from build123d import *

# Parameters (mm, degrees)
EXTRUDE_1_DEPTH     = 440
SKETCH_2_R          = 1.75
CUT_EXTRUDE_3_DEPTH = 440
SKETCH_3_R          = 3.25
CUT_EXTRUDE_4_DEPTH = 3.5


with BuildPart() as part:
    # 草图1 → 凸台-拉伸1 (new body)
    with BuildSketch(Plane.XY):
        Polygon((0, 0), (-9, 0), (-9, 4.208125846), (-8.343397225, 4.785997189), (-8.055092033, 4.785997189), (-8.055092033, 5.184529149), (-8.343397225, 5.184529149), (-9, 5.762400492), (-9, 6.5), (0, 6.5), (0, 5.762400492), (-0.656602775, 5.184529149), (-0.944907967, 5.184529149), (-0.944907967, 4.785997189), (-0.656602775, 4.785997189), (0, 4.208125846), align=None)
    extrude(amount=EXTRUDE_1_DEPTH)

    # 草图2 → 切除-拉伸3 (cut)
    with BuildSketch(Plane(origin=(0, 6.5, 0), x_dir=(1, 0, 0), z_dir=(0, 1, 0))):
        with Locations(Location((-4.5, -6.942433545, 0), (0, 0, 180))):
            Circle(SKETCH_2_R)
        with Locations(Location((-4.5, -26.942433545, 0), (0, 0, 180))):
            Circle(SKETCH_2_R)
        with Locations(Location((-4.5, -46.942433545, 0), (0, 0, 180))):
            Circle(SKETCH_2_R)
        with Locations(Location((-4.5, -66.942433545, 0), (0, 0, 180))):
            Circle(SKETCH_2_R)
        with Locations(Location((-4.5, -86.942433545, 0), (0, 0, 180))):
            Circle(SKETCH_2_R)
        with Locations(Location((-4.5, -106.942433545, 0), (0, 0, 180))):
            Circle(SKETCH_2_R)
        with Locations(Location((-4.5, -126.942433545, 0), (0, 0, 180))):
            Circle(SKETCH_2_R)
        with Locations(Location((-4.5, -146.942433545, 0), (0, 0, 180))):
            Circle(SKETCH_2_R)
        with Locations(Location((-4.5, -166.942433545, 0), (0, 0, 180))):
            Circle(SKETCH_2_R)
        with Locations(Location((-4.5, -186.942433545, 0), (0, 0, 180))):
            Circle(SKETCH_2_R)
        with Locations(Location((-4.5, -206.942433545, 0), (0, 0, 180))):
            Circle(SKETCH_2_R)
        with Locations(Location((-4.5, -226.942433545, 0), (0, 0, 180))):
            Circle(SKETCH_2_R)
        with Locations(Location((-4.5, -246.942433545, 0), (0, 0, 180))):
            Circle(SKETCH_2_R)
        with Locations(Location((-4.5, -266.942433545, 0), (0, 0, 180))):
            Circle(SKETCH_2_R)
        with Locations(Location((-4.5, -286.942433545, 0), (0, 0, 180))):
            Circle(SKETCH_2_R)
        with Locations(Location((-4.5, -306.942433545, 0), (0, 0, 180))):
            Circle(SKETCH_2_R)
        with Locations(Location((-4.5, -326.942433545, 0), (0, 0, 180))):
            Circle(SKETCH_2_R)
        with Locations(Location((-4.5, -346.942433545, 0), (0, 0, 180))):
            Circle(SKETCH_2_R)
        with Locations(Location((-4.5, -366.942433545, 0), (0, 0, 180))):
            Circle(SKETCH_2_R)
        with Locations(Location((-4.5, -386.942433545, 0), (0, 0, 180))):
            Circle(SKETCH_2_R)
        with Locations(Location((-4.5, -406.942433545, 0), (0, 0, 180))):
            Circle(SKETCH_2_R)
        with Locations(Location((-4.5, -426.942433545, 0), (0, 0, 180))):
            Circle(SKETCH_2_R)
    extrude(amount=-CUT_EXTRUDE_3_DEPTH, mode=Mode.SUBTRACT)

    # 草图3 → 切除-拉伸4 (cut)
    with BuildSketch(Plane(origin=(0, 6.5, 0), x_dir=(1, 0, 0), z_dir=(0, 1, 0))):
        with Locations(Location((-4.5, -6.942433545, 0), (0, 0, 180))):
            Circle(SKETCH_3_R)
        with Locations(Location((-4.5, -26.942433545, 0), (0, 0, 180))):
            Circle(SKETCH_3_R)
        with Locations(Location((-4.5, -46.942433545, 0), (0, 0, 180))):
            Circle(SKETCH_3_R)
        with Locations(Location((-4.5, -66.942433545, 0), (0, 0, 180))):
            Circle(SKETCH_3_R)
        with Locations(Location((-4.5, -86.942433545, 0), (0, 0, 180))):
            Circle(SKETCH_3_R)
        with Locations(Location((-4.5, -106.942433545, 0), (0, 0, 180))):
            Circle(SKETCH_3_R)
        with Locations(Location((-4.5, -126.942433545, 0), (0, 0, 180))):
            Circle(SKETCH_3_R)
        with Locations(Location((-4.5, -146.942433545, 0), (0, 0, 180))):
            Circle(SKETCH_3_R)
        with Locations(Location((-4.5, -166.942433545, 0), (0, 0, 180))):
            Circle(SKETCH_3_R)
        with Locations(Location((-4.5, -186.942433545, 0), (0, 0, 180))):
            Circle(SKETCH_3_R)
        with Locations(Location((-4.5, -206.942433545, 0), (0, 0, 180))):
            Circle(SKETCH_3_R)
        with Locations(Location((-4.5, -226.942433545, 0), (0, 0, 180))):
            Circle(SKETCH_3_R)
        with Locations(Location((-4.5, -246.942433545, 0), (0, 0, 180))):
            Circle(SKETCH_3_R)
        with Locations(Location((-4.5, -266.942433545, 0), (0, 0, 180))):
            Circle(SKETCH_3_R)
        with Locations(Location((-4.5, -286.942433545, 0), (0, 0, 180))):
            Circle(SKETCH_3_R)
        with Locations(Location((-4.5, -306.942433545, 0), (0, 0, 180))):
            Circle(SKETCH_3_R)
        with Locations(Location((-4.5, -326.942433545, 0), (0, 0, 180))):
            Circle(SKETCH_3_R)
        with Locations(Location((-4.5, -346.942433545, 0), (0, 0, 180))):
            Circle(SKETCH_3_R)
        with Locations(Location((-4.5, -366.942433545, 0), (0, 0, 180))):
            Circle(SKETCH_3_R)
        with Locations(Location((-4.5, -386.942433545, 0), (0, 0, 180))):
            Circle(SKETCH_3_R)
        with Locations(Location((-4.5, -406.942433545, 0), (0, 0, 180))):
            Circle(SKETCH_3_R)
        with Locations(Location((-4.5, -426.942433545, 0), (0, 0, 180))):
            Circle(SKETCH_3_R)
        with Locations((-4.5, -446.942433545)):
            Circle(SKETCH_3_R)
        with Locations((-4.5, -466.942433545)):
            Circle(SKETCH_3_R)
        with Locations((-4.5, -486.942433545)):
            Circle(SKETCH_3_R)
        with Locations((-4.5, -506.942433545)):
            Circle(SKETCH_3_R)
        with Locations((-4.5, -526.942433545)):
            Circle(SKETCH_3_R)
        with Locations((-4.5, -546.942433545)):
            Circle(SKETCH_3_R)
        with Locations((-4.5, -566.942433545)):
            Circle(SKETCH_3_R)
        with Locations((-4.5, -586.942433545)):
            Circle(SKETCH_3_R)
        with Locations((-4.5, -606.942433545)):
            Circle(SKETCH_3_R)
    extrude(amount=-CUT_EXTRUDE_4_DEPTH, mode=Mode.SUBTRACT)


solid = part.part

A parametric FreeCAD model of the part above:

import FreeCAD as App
import Part
import Sketcher


def add_polygon(sketch, points):
    """Adds a closed chain of lines whose ends are joined by coincident constraints."""
    first, n = sketch.GeometryCount, len(points)
    for a, b in zip(points, points[1:] + points[:1]):
        sketch.addGeometry(Part.LineSegment(App.Vector(*a, 0), App.Vector(*b, 0)), False)
    for i in range(n):
        sketch.addConstraint(Sketcher.Constraint("Coincident", first + i, 2, first + (i + 1) % n, 1))

doc = App.newDocument("Part")
body = doc.addObject("PartDesign::Body", "Body")

sketch1 = doc.addObject("Sketcher::SketchObject", "Sketch")
body.addObject(sketch1)
sketch1.AttachmentSupport = (doc.XY_Plane, [""])
sketch1.MapMode = "FlatFace"
add_polygon(sketch1, [(-9, 0), (0, 0), (0, 4.208126), (-0.656603, 4.785997), (-0.944908, 4.785997), (-0.944908, 5.184529), (-0.656603, 5.184529), (0, 5.7624), (0, 6.5), (-9, 6.5), (-9, 5.7624), (-8.343397, 5.184529), (-8.055092, 5.184529), (-8.055092, 4.785997), (-8.343397, 4.785997), (-9, 4.208126)])
sketch1.addConstraint(Sketcher.Constraint("Horizontal", 0))
sketch1.addConstraint(Sketcher.Constraint("Vertical", 1))
sketch1.addConstraint(Sketcher.Constraint("Horizontal", 3))
sketch1.addConstraint(Sketcher.Constraint("Vertical", 4))
sketch1.addConstraint(Sketcher.Constraint("Horizontal", 5))
sketch1.addConstraint(Sketcher.Constraint("Vertical", 7))
sketch1.addConstraint(Sketcher.Constraint("Horizontal", 8))
sketch1.addConstraint(Sketcher.Constraint("Vertical", 9))
sketch1.addConstraint(Sketcher.Constraint("Horizontal", 11))
sketch1.addConstraint(Sketcher.Constraint("Vertical", 12))
sketch1.addConstraint(Sketcher.Constraint("Horizontal", 13))
sketch1.addConstraint(Sketcher.Constraint("Vertical", 15))
sketch1.addConstraint(Sketcher.Constraint("Coincident", 0, 2, -1, 1))
sketch1.addConstraint(Sketcher.Constraint("PointOnObject", 6, 2, -2))
sketch1.addConstraint(Sketcher.Constraint("Parallel", 2, 10))
sketch1.addConstraint(Sketcher.Constraint("Parallel", 6, 14))
sketch1.addConstraint(Sketcher.Constraint("Horizontal", 6, 2, 9, 2))
sketch1.addConstraint(Sketcher.Constraint("Horizontal", 5, 2, 10, 2))
sketch1.addConstraint(Sketcher.Constraint("Horizontal", 3, 2, 12, 2))
sketch1.addConstraint(Sketcher.Constraint("Horizontal", 1, 2, 14, 2))
sketch1.addConstraint(Sketcher.Constraint("Vertical", 2, 2, 5, 2))
sketch1.addConstraint(Sketcher.Constraint("Vertical", 10, 2, 13, 2))
sketch1.addConstraint(Sketcher.Constraint("Vertical", 9, 2, 14, 2))
sketch1.addConstraint(Sketcher.Constraint("Equal", 5, 11))
sketch1.addConstraint(Sketcher.Constraint("DistanceX", 0, 1, 0, 2, 9.0))
sketch1.addConstraint(Sketcher.Constraint("DistanceY", -1, 1, 7, 2, 6.5))
sketch1.addConstraint(Sketcher.Constraint("DistanceY", 7, 1, 7, 2, 0.7376))
sketch1.addConstraint(Sketcher.Constraint("DistanceY", 4, 1, 4, 2, 0.398532))
sketch1.addConstraint(Sketcher.Constraint("Distance", 2, 0.874679))
sketch1.addConstraint(Sketcher.Constraint("DistanceX", 3, 2, 3, 1, 0.288305))
sketch1.addConstraint(Sketcher.Constraint("DistanceY", 1, 1, 1, 2, 4.208126))
pad1 = doc.addObject("PartDesign::Pad", "Pad")
body.addObject(pad1)
pad1.Profile = sketch1
pad1.Length = 440

sketch2 = doc.addObject("Sketcher::SketchObject", "Sketch001")
body.addObject(sketch2)
sketch2.AttachmentSupport = (doc.XZ_Plane, [""])
sketch2.MapMode = "FlatFace"
sketch2.AttachmentOffset = App.Placement(App.Vector(0, 0, -6.5), App.Rotation())
sketch2.addGeometry(Part.Circle(App.Vector(-4.5, 6.942434, 0), App.Vector(0, 0, 1), 1.75), False)
sketch2.addGeometry(Part.Circle(App.Vector(-4.5, 26.942434, 0), App.Vector(0, 0, 1), 1.75), False)
sketch2.addGeometry(Part.Circle(App.Vector(-4.5, 46.942434, 0), App.Vector(0, 0, 1), 1.75), False)
sketch2.addGeometry(Part.Circle(App.Vector(-4.5, 66.942434, 0), App.Vector(0, 0, 1), 1.75), False)
sketch2.addGeometry(Part.Circle(App.Vector(-4.5, 86.942434, 0), App.Vector(0, 0, 1), 1.75), False)
sketch2.addGeometry(Part.Circle(App.Vector(-4.5, 106.942434, 0), App.Vector(0, 0, 1), 1.75), False)
sketch2.addGeometry(Part.Circle(App.Vector(-4.5, 126.942434, 0), App.Vector(0, 0, 1), 1.75), False)
sketch2.addGeometry(Part.Circle(App.Vector(-4.5, 146.942434, 0), App.Vector(0, 0, 1), 1.75), False)
sketch2.addGeometry(Part.Circle(App.Vector(-4.5, 166.942434, 0), App.Vector(0, 0, 1), 1.75), False)
sketch2.addGeometry(Part.Circle(App.Vector(-4.5, 186.942434, 0), App.Vector(0, 0, 1), 1.75), False)
sketch2.addGeometry(Part.Circle(App.Vector(-4.5, 206.942434, 0), App.Vector(0, 0, 1), 1.75), False)
sketch2.addGeometry(Part.Circle(App.Vector(-4.5, 226.942434, 0), App.Vector(0, 0, 1), 1.75), False)
sketch2.addGeometry(Part.Circle(App.Vector(-4.5, 246.942434, 0), App.Vector(0, 0, 1), 1.75), False)
sketch2.addGeometry(Part.Circle(App.Vector(-4.5, 266.942434, 0), App.Vector(0, 0, 1), 1.75), False)
sketch2.addGeometry(Part.Circle(App.Vector(-4.5, 286.942434, 0), App.Vector(0, 0, 1), 1.75), False)
sketch2.addGeometry(Part.Circle(App.Vector(-4.5, 306.942434, 0), App.Vector(0, 0, 1), 1.75), False)
sketch2.addGeometry(Part.Circle(App.Vector(-4.5, 326.942434, 0), App.Vector(0, 0, 1), 1.75), False)
sketch2.addGeometry(Part.Circle(App.Vector(-4.5, 346.942434, 0), App.Vector(0, 0, 1), 1.75), False)
sketch2.addGeometry(Part.Circle(App.Vector(-4.5, 366.942434, 0), App.Vector(0, 0, 1), 1.75), False)
sketch2.addGeometry(Part.Circle(App.Vector(-4.5, 386.942434, 0), App.Vector(0, 0, 1), 1.75), False)
sketch2.addGeometry(Part.Circle(App.Vector(-4.5, 406.942434, 0), App.Vector(0, 0, 1), 1.75), False)
sketch2.addGeometry(Part.Circle(App.Vector(-4.5, 426.942434, 0), App.Vector(0, 0, 1), 1.75), False)
sketch2.addConstraint(Sketcher.Constraint("Equal", 0, 1))
sketch2.addConstraint(Sketcher.Constraint("Equal", 1, 2))
sketch2.addConstraint(Sketcher.Constraint("Equal", 2, 3))
sketch2.addConstraint(Sketcher.Constraint("Equal", 3, 4))
sketch2.addConstraint(Sketcher.Constraint("Equal", 4, 5))
sketch2.addConstraint(Sketcher.Constraint("Equal", 5, 6))
sketch2.addConstraint(Sketcher.Constraint("Equal", 6, 7))
sketch2.addConstraint(Sketcher.Constraint("Equal", 7, 8))
sketch2.addConstraint(Sketcher.Constraint("Equal", 8, 9))
sketch2.addConstraint(Sketcher.Constraint("Equal", 9, 10))
sketch2.addConstraint(Sketcher.Constraint("Equal", 10, 11))
sketch2.addConstraint(Sketcher.Constraint("Equal", 11, 12))
sketch2.addConstraint(Sketcher.Constraint("Equal", 12, 13))
sketch2.addConstraint(Sketcher.Constraint("Equal", 13, 14))
sketch2.addConstraint(Sketcher.Constraint("Equal", 14, 15))
sketch2.addConstraint(Sketcher.Constraint("Equal", 15, 16))
sketch2.addConstraint(Sketcher.Constraint("Equal", 16, 17))
sketch2.addConstraint(Sketcher.Constraint("Equal", 17, 18))
sketch2.addConstraint(Sketcher.Constraint("Equal", 18, 19))
sketch2.addConstraint(Sketcher.Constraint("Equal", 19, 20))
sketch2.addConstraint(Sketcher.Constraint("Equal", 20, 21))
sketch2.addConstraint(Sketcher.Constraint("Vertical", 0, 3, 1, 3))
sketch2.addConstraint(Sketcher.Constraint("Vertical", 1, 3, 2, 3))
sketch2.addConstraint(Sketcher.Constraint("Vertical", 2, 3, 3, 3))
sketch2.addConstraint(Sketcher.Constraint("Vertical", 3, 3, 4, 3))
sketch2.addConstraint(Sketcher.Constraint("Vertical", 4, 3, 5, 3))
sketch2.addConstraint(Sketcher.Constraint("Vertical", 5, 3, 6, 3))
sketch2.addConstraint(Sketcher.Constraint("Vertical", 6, 3, 7, 3))
sketch2.addConstraint(Sketcher.Constraint("Vertical", 7, 3, 8, 3))
sketch2.addConstraint(Sketcher.Constraint("Vertical", 8, 3, 9, 3))
sketch2.addConstraint(Sketcher.Constraint("Vertical", 9, 3, 10, 3))
sketch2.addConstraint(Sketcher.Constraint("Vertical", 10, 3, 11, 3))
sketch2.addConstraint(Sketcher.Constraint("Vertical", 11, 3, 12, 3))
sketch2.addConstraint(Sketcher.Constraint("Vertical", 12, 3, 13, 3))
sketch2.addConstraint(Sketcher.Constraint("Vertical", 13, 3, 14, 3))
sketch2.addConstraint(Sketcher.Constraint("Vertical", 14, 3, 15, 3))
sketch2.addConstraint(Sketcher.Constraint("Vertical", 15, 3, 16, 3))
sketch2.addConstraint(Sketcher.Constraint("Vertical", 16, 3, 17, 3))
sketch2.addConstraint(Sketcher.Constraint("Vertical", 17, 3, 18, 3))
sketch2.addConstraint(Sketcher.Constraint("Vertical", 18, 3, 19, 3))
sketch2.addConstraint(Sketcher.Constraint("Vertical", 19, 3, 20, 3))
sketch2.addConstraint(Sketcher.Constraint("Vertical", 20, 3, 21, 3))
sketch2.addConstraint(Sketcher.Constraint("Diameter", 0, 3.5))
sketch2.addConstraint(Sketcher.Constraint("DistanceY", 0, 3, 1, 3, 20.0))
sketch2.addConstraint(Sketcher.Constraint("DistanceY", 1, 3, 2, 3, 20.0))
sketch2.addConstraint(Sketcher.Constraint("DistanceY", 2, 3, 3, 3, 20.0))
sketch2.addConstraint(Sketcher.Constraint("DistanceY", 3, 3, 4, 3, 20.0))
sketch2.addConstraint(Sketcher.Constraint("DistanceY", 4, 3, 5, 3, 20.0))
sketch2.addConstraint(Sketcher.Constraint("DistanceY", 5, 3, 6, 3, 20.0))
sketch2.addConstraint(Sketcher.Constraint("DistanceY", 6, 3, 7, 3, 20.0))
sketch2.addConstraint(Sketcher.Constraint("DistanceY", 7, 3, 8, 3, 20.0))
sketch2.addConstraint(Sketcher.Constraint("DistanceY", 8, 3, 9, 3, 20.0))
sketch2.addConstraint(Sketcher.Constraint("DistanceY", 9, 3, 10, 3, 20.0))
sketch2.addConstraint(Sketcher.Constraint("DistanceY", 10, 3, 11, 3, 20.0))
sketch2.addConstraint(Sketcher.Constraint("DistanceY", 11, 3, 12, 3, 20.0))
sketch2.addConstraint(Sketcher.Constraint("DistanceY", 12, 3, 13, 3, 20.0))
sketch2.addConstraint(Sketcher.Constraint("DistanceY", 13, 3, 14, 3, 20.0))
sketch2.addConstraint(Sketcher.Constraint("DistanceY", 14, 3, 15, 3, 20.0))
sketch2.addConstraint(Sketcher.Constraint("DistanceY", 15, 3, 16, 3, 20.0))
sketch2.addConstraint(Sketcher.Constraint("DistanceY", 16, 3, 17, 3, 20.0))
sketch2.addConstraint(Sketcher.Constraint("DistanceY", 17, 3, 18, 3, 20.0))
sketch2.addConstraint(Sketcher.Constraint("DistanceY", 18, 3, 19, 3, 20.0))
sketch2.addConstraint(Sketcher.Constraint("DistanceY", 19, 3, 20, 3, 20.0))
sketch2.addConstraint(Sketcher.Constraint("DistanceY", 20, 3, 21, 3, 20.0))
sketch2.addConstraint(Sketcher.Constraint("DistanceX", 0, 3, -1, 1, 4.5))
sketch2.addConstraint(Sketcher.Constraint("DistanceY", -1, 1, 0, 3, 6.942434))
pocket1 = doc.addObject("PartDesign::Pocket", "Pocket")
body.addObject(pocket1)
pocket1.Profile = sketch2
pocket1.Length = 440
pocket1.Reversed = True

sketch3 = doc.addObject("Sketcher::SketchObject", "Sketch002")
body.addObject(sketch3)
sketch3.AttachmentSupport = (doc.XZ_Plane, [""])
sketch3.MapMode = "FlatFace"
sketch3.AttachmentOffset = App.Placement(App.Vector(0, 0, -6.5), App.Rotation())
sketch3.addGeometry(Part.Circle(App.Vector(-4.5, 6.942434, 0), App.Vector(0, 0, 1), 3.25), False)
sketch3.addGeometry(Part.Circle(App.Vector(-4.5, 26.942434, 0), App.Vector(0, 0, 1), 3.25), False)
sketch3.addGeometry(Part.Circle(App.Vector(-4.5, 46.942434, 0), App.Vector(0, 0, 1), 3.25), False)
sketch3.addGeometry(Part.Circle(App.Vector(-4.5, 66.942434, 0), App.Vector(0, 0, 1), 3.25), False)
sketch3.addGeometry(Part.Circle(App.Vector(-4.5, 86.942434, 0), App.Vector(0, 0, 1), 3.25), False)
sketch3.addGeometry(Part.Circle(App.Vector(-4.5, 106.942434, 0), App.Vector(0, 0, 1), 3.25), False)
sketch3.addGeometry(Part.Circle(App.Vector(-4.5, 126.942434, 0), App.Vector(0, 0, 1), 3.25), False)
sketch3.addGeometry(Part.Circle(App.Vector(-4.5, 146.942434, 0), App.Vector(0, 0, 1), 3.25), False)
sketch3.addGeometry(Part.Circle(App.Vector(-4.5, 166.942434, 0), App.Vector(0, 0, 1), 3.25), False)
sketch3.addGeometry(Part.Circle(App.Vector(-4.5, 186.942434, 0), App.Vector(0, 0, 1), 3.25), False)
sketch3.addGeometry(Part.Circle(App.Vector(-4.5, 206.942434, 0), App.Vector(0, 0, 1), 3.25), False)
sketch3.addGeometry(Part.Circle(App.Vector(-4.5, 226.942434, 0), App.Vector(0, 0, 1), 3.25), False)
sketch3.addGeometry(Part.Circle(App.Vector(-4.5, 246.942434, 0), App.Vector(0, 0, 1), 3.25), False)
sketch3.addGeometry(Part.Circle(App.Vector(-4.5, 266.942434, 0), App.Vector(0, 0, 1), 3.25), False)
sketch3.addGeometry(Part.Circle(App.Vector(-4.5, 286.942434, 0), App.Vector(0, 0, 1), 3.25), False)
sketch3.addGeometry(Part.Circle(App.Vector(-4.5, 306.942434, 0), App.Vector(0, 0, 1), 3.25), False)
sketch3.addGeometry(Part.Circle(App.Vector(-4.5, 326.942434, 0), App.Vector(0, 0, 1), 3.25), False)
sketch3.addGeometry(Part.Circle(App.Vector(-4.5, 346.942434, 0), App.Vector(0, 0, 1), 3.25), False)
sketch3.addGeometry(Part.Circle(App.Vector(-4.5, 366.942434, 0), App.Vector(0, 0, 1), 3.25), False)
sketch3.addGeometry(Part.Circle(App.Vector(-4.5, 386.942434, 0), App.Vector(0, 0, 1), 3.25), False)
sketch3.addGeometry(Part.Circle(App.Vector(-4.5, 406.942434, 0), App.Vector(0, 0, 1), 3.25), False)
sketch3.addGeometry(Part.Circle(App.Vector(-4.5, 426.942434, 0), App.Vector(0, 0, 1), 3.25), False)
sketch3.addGeometry(Part.Circle(App.Vector(-4.5, 446.942434, 0), App.Vector(0, 0, 1), 3.25), False)
sketch3.addGeometry(Part.Circle(App.Vector(-4.5, 466.942434, 0), App.Vector(0, 0, 1), 3.25), False)
sketch3.addGeometry(Part.Circle(App.Vector(-4.5, 486.942434, 0), App.Vector(0, 0, 1), 3.25), False)
sketch3.addGeometry(Part.Circle(App.Vector(-4.5, 506.942434, 0), App.Vector(0, 0, 1), 3.25), False)
sketch3.addGeometry(Part.Circle(App.Vector(-4.5, 526.942434, 0), App.Vector(0, 0, 1), 3.25), False)
sketch3.addGeometry(Part.Circle(App.Vector(-4.5, 546.942434, 0), App.Vector(0, 0, 1), 3.25), False)
sketch3.addGeometry(Part.Circle(App.Vector(-4.5, 566.942434, 0), App.Vector(0, 0, 1), 3.25), False)
sketch3.addGeometry(Part.Circle(App.Vector(-4.5, 586.942434, 0), App.Vector(0, 0, 1), 3.25), False)
sketch3.addGeometry(Part.Circle(App.Vector(-4.5, 606.942434, 0), App.Vector(0, 0, 1), 3.25), False)
sketch3.addConstraint(Sketcher.Constraint("Equal", 0, 1))
sketch3.addConstraint(Sketcher.Constraint("Equal", 1, 2))
sketch3.addConstraint(Sketcher.Constraint("Equal", 2, 3))
sketch3.addConstraint(Sketcher.Constraint("Equal", 3, 4))
sketch3.addConstraint(Sketcher.Constraint("Equal", 4, 5))
sketch3.addConstraint(Sketcher.Constraint("Equal", 5, 6))
sketch3.addConstraint(Sketcher.Constraint("Equal", 6, 7))
sketch3.addConstraint(Sketcher.Constraint("Equal", 7, 8))
sketch3.addConstraint(Sketcher.Constraint("Equal", 8, 9))
sketch3.addConstraint(Sketcher.Constraint("Equal", 9, 10))
sketch3.addConstraint(Sketcher.Constraint("Equal", 10, 11))
sketch3.addConstraint(Sketcher.Constraint("Equal", 11, 12))
sketch3.addConstraint(Sketcher.Constraint("Equal", 12, 13))
sketch3.addConstraint(Sketcher.Constraint("Equal", 13, 14))
sketch3.addConstraint(Sketcher.Constraint("Equal", 14, 15))
sketch3.addConstraint(Sketcher.Constraint("Equal", 15, 16))
sketch3.addConstraint(Sketcher.Constraint("Equal", 16, 17))
sketch3.addConstraint(Sketcher.Constraint("Equal", 17, 18))
sketch3.addConstraint(Sketcher.Constraint("Equal", 18, 19))
sketch3.addConstraint(Sketcher.Constraint("Equal", 19, 20))
sketch3.addConstraint(Sketcher.Constraint("Equal", 20, 21))
sketch3.addConstraint(Sketcher.Constraint("Equal", 21, 22))
sketch3.addConstraint(Sketcher.Constraint("Equal", 22, 23))
sketch3.addConstraint(Sketcher.Constraint("Equal", 23, 24))
sketch3.addConstraint(Sketcher.Constraint("Equal", 24, 25))
sketch3.addConstraint(Sketcher.Constraint("Equal", 25, 26))
sketch3.addConstraint(Sketcher.Constraint("Equal", 26, 27))
sketch3.addConstraint(Sketcher.Constraint("Equal", 27, 28))
sketch3.addConstraint(Sketcher.Constraint("Equal", 28, 29))
sketch3.addConstraint(Sketcher.Constraint("Equal", 29, 30))
sketch3.addConstraint(Sketcher.Constraint("Vertical", 0, 3, 1, 3))
sketch3.addConstraint(Sketcher.Constraint("Vertical", 1, 3, 2, 3))
sketch3.addConstraint(Sketcher.Constraint("Vertical", 2, 3, 3, 3))
sketch3.addConstraint(Sketcher.Constraint("Vertical", 3, 3, 4, 3))
sketch3.addConstraint(Sketcher.Constraint("Vertical", 4, 3, 5, 3))
sketch3.addConstraint(Sketcher.Constraint("Vertical", 5, 3, 6, 3))
sketch3.addConstraint(Sketcher.Constraint("Vertical", 6, 3, 7, 3))
sketch3.addConstraint(Sketcher.Constraint("Vertical", 7, 3, 8, 3))
sketch3.addConstraint(Sketcher.Constraint("Vertical", 8, 3, 9, 3))
sketch3.addConstraint(Sketcher.Constraint("Vertical", 9, 3, 10, 3))
sketch3.addConstraint(Sketcher.Constraint("Vertical", 10, 3, 11, 3))
sketch3.addConstraint(Sketcher.Constraint("Vertical", 11, 3, 12, 3))
sketch3.addConstraint(Sketcher.Constraint("Vertical", 12, 3, 13, 3))
sketch3.addConstraint(Sketcher.Constraint("Vertical", 13, 3, 14, 3))
sketch3.addConstraint(Sketcher.Constraint("Vertical", 14, 3, 15, 3))
sketch3.addConstraint(Sketcher.Constraint("Vertical", 15, 3, 16, 3))
sketch3.addConstraint(Sketcher.Constraint("Vertical", 16, 3, 17, 3))
sketch3.addConstraint(Sketcher.Constraint("Vertical", 17, 3, 18, 3))
sketch3.addConstraint(Sketcher.Constraint("Vertical", 18, 3, 19, 3))
sketch3.addConstraint(Sketcher.Constraint("Vertical", 19, 3, 20, 3))
sketch3.addConstraint(Sketcher.Constraint("Vertical", 20, 3, 21, 3))
sketch3.addConstraint(Sketcher.Constraint("Vertical", 21, 3, 22, 3))
sketch3.addConstraint(Sketcher.Constraint("Vertical", 22, 3, 23, 3))
sketch3.addConstraint(Sketcher.Constraint("Vertical", 23, 3, 24, 3))
sketch3.addConstraint(Sketcher.Constraint("Vertical", 24, 3, 25, 3))
sketch3.addConstraint(Sketcher.Constraint("Vertical", 25, 3, 26, 3))
sketch3.addConstraint(Sketcher.Constraint("Vertical", 26, 3, 27, 3))
sketch3.addConstraint(Sketcher.Constraint("Vertical", 27, 3, 28, 3))
sketch3.addConstraint(Sketcher.Constraint("Vertical", 28, 3, 29, 3))
sketch3.addConstraint(Sketcher.Constraint("Vertical", 29, 3, 30, 3))
sketch3.addConstraint(Sketcher.Constraint("Diameter", 0, 6.5))
sketch3.addConstraint(Sketcher.Constraint("DistanceY", 0, 3, 1, 3, 20.0))
sketch3.addConstraint(Sketcher.Constraint("DistanceY", 1, 3, 2, 3, 20.0))
sketch3.addConstraint(Sketcher.Constraint("DistanceY", 2, 3, 3, 3, 20.0))
sketch3.addConstraint(Sketcher.Constraint("DistanceY", 3, 3, 4, 3, 20.0))
sketch3.addConstraint(Sketcher.Constraint("DistanceY", 4, 3, 5, 3, 20.0))
sketch3.addConstraint(Sketcher.Constraint("DistanceY", 5, 3, 6, 3, 20.0))
sketch3.addConstraint(Sketcher.Constraint("DistanceY", 6, 3, 7, 3, 20.0))
sketch3.addConstraint(Sketcher.Constraint("DistanceY", 7, 3, 8, 3, 20.0))
sketch3.addConstraint(Sketcher.Constraint("DistanceY", 8, 3, 9, 3, 20.0))
sketch3.addConstraint(Sketcher.Constraint("DistanceY", 9, 3, 10, 3, 20.0))
sketch3.addConstraint(Sketcher.Constraint("DistanceY", 10, 3, 11, 3, 20.0))
sketch3.addConstraint(Sketcher.Constraint("DistanceY", 11, 3, 12, 3, 20.0))
sketch3.addConstraint(Sketcher.Constraint("DistanceY", 12, 3, 13, 3, 20.0))
sketch3.addConstraint(Sketcher.Constraint("DistanceY", 13, 3, 14, 3, 20.0))
sketch3.addConstraint(Sketcher.Constraint("DistanceY", 14, 3, 15, 3, 20.0))
sketch3.addConstraint(Sketcher.Constraint("DistanceY", 15, 3, 16, 3, 20.0))
sketch3.addConstraint(Sketcher.Constraint("DistanceY", 16, 3, 17, 3, 20.0))
sketch3.addConstraint(Sketcher.Constraint("DistanceY", 17, 3, 18, 3, 20.0))
sketch3.addConstraint(Sketcher.Constraint("DistanceY", 18, 3, 19, 3, 20.0))
sketch3.addConstraint(Sketcher.Constraint("DistanceY", 19, 3, 20, 3, 20.0))
sketch3.addConstraint(Sketcher.Constraint("DistanceY", 20, 3, 21, 3, 20.0))
sketch3.addConstraint(Sketcher.Constraint("DistanceY", 21, 3, 22, 3, 20.0))
sketch3.addConstraint(Sketcher.Constraint("DistanceY", 22, 3, 23, 3, 20.0))
sketch3.addConstraint(Sketcher.Constraint("DistanceY", 23, 3, 24, 3, 20.0))
sketch3.addConstraint(Sketcher.Constraint("DistanceY", 24, 3, 25, 3, 20.0))
sketch3.addConstraint(Sketcher.Constraint("DistanceY", 25, 3, 26, 3, 20.0))
sketch3.addConstraint(Sketcher.Constraint("DistanceY", 26, 3, 27, 3, 20.0))
sketch3.addConstraint(Sketcher.Constraint("DistanceY", 27, 3, 28, 3, 20.0))
sketch3.addConstraint(Sketcher.Constraint("DistanceY", 28, 3, 29, 3, 20.0))
sketch3.addConstraint(Sketcher.Constraint("DistanceY", 29, 3, 30, 3, 20.0))
sketch3.addConstraint(Sketcher.Constraint("DistanceX", 0, 3, -1, 1, 4.5))
sketch3.addConstraint(Sketcher.Constraint("DistanceY", -1, 1, 0, 3, 6.942434))
pocket2 = doc.addObject("PartDesign::Pocket", "Pocket001")
body.addObject(pocket2)
pocket2.Profile = sketch3
pocket2.Length = 3.5
pocket2.Reversed = True

doc.recompute()
